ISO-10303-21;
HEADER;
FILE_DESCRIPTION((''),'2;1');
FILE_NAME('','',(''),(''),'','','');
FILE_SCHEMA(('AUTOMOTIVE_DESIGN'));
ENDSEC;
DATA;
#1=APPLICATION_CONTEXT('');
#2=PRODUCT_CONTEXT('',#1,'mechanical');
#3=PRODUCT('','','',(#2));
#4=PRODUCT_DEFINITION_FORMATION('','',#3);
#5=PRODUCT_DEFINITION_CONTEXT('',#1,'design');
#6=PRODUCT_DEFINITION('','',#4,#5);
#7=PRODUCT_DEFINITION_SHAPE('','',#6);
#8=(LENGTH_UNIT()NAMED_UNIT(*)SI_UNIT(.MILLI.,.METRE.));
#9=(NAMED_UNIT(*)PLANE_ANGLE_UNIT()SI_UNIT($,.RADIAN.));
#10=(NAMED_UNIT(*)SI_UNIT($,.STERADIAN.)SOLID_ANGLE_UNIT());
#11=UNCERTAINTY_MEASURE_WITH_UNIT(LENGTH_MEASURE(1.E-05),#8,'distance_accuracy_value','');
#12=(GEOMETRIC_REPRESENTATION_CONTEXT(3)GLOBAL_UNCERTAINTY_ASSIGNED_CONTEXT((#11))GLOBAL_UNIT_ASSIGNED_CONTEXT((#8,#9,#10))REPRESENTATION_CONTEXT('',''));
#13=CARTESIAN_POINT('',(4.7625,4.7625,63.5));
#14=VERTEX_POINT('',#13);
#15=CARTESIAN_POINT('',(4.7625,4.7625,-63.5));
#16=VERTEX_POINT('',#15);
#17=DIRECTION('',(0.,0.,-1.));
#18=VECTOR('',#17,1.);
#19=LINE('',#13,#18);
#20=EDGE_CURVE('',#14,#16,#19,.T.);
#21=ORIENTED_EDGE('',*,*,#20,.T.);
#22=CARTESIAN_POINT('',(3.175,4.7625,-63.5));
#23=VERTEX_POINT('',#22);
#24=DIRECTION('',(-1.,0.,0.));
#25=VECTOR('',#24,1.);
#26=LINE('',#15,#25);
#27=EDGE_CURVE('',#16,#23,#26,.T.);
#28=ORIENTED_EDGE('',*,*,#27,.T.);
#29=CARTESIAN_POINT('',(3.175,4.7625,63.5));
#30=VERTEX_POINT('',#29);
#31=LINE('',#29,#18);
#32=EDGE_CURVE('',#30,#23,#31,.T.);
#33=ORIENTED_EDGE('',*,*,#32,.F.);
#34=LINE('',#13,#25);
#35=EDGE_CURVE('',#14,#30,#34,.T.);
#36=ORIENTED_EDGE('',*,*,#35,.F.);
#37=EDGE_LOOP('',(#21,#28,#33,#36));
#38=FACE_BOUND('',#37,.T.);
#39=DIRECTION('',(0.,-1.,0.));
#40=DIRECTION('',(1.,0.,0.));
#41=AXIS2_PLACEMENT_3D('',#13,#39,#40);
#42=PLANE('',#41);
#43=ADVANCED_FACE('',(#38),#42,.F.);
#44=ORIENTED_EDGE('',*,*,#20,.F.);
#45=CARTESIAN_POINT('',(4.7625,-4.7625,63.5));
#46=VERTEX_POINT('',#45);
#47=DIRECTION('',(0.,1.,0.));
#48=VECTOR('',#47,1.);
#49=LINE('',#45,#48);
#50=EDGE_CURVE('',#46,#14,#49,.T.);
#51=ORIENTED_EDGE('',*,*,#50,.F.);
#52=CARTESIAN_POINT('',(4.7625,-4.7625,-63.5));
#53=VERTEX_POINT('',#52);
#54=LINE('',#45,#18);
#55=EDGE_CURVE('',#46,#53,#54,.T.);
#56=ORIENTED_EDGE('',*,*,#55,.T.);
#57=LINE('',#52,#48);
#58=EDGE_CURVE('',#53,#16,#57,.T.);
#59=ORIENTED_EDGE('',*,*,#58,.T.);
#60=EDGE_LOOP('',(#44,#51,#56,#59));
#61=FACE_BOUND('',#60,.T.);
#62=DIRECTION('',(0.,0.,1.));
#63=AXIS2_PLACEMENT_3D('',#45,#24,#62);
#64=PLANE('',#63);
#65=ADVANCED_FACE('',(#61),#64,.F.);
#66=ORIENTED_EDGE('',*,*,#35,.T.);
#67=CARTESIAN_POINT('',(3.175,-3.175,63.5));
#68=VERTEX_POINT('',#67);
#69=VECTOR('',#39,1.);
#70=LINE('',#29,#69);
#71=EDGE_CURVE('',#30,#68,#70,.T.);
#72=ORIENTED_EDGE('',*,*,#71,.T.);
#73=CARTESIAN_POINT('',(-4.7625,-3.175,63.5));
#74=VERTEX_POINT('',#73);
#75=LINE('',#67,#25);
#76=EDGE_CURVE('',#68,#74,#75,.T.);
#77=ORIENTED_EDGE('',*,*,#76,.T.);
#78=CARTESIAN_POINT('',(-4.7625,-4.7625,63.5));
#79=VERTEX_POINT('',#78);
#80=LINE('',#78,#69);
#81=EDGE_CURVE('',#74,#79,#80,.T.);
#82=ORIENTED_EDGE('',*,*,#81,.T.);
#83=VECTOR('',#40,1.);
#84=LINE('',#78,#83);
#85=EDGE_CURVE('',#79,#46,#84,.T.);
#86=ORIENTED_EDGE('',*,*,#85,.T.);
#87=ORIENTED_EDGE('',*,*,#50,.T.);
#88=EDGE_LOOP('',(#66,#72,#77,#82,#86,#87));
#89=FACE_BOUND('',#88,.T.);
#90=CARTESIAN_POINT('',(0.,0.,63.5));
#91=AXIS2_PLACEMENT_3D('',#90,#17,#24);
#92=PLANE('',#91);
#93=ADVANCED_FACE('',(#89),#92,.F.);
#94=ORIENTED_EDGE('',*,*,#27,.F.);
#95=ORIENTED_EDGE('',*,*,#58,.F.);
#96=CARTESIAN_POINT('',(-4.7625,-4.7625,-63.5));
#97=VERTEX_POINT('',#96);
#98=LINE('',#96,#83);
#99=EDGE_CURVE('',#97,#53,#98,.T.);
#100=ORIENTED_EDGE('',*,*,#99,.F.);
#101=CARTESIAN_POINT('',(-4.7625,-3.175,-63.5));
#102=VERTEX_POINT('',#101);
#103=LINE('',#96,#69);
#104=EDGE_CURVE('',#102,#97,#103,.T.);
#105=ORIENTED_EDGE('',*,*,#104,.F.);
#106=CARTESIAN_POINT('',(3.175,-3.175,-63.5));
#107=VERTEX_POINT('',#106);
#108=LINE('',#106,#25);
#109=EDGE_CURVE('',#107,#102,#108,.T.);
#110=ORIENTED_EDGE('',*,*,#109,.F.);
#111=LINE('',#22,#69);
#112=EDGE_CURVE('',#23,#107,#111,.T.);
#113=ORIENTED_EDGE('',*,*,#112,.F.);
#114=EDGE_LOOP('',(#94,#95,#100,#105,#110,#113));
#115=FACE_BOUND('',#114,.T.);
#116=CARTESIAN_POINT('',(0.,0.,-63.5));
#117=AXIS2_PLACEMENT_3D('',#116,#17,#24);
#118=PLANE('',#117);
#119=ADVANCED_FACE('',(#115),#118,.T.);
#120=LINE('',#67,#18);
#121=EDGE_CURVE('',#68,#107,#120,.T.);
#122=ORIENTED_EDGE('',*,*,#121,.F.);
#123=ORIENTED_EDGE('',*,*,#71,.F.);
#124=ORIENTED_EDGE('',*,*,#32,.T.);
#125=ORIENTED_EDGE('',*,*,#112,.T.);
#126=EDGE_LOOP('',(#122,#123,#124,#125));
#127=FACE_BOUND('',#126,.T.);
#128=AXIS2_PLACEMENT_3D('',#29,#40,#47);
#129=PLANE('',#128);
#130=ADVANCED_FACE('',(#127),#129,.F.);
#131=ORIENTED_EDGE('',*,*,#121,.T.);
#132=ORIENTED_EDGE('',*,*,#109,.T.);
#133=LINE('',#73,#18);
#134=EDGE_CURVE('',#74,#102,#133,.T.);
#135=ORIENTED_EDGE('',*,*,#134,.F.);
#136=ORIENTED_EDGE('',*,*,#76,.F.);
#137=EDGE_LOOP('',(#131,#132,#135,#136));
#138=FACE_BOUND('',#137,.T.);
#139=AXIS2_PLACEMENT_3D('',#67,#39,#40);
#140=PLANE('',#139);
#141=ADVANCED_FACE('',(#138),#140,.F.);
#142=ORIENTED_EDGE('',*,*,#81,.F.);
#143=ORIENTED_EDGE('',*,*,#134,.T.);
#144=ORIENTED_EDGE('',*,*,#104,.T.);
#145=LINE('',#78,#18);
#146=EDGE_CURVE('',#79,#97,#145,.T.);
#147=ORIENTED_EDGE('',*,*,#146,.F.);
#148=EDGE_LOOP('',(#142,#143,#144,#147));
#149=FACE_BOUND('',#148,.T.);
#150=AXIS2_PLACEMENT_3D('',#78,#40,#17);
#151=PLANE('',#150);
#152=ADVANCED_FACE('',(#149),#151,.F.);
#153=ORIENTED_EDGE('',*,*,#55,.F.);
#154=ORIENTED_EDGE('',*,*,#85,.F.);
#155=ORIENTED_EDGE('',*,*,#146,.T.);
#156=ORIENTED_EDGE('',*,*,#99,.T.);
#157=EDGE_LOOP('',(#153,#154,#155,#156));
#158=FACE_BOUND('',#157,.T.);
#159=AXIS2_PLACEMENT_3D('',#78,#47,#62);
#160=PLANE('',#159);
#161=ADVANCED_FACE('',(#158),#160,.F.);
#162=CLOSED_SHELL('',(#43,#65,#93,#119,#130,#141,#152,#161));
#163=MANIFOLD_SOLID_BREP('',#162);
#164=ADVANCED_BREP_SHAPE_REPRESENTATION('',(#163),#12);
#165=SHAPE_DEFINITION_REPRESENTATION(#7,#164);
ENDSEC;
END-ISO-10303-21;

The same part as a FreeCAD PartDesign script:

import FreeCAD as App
import Part
import Sketcher
from FreeCAD import Vector
Q = App.Units.Quantity


def add_polygon(sketch, points):
    """Adds a closed chain of lines whose ends are joined by coincident constraints."""
    first, n = sketch.GeometryCount, len(points)
    for a, b in zip(points, points[1:] + points[:1]):
        sketch.addGeometry(Part.LineSegment(App.Vector(*a, 0), App.Vector(*b, 0)), False)
    for i in range(n):
        sketch.addConstraint(Sketcher.Constraint("Coincident", first + i, 2, first + (i + 1) % n, 1))

doc = App.newDocument("Part")
body = doc.addObject("PartDesign::Body", "Body")

sketch1 = body.newObject("Sketcher::SketchObject", "Sketch")
sketch1.AttachmentSupport = (doc.getObject("XY_Plane"), [""])
sketch1.MapMode = "FlatFace"
add_polygon(sketch1, [(3.2, -3.2), (-4.8, -3.2), (-4.8, -4.8), (4.8, -4.8), (4.8, 4.8), (3.2, 4.8)])
sketch1.addConstraint([
    Sketcher.Constraint("Horizontal", 0),
    Sketcher.Constraint("Vertical", 1),
    Sketcher.Constraint("Horizontal", 2),
    Sketcher.Constraint("Vertical", 3),
    Sketcher.Constraint("Horizontal", 4),
    Sketcher.Constraint("Vertical", 5),
    Sketcher.Constraint("Symmetric", 1, 2, 3, 2, -1, 1),
    Sketcher.Constraint("Equal", 4, 1),
    Sketcher.Constraint("Equal", 2, 3),
    Sketcher.Constraint("DistanceX", 0, 2, 0, 1, Q("0.3125 in")),
    Sketcher.Constraint("DistanceX", 2, 1, 2, 2, Q("0.375 in")),
])
pad1 = body.newObject("PartDesign::Pad", "Pad")
pad1.Profile = sketch1
pad1.Length = Q("5 in")
pad1.Midplane = True

doc.recompute()
